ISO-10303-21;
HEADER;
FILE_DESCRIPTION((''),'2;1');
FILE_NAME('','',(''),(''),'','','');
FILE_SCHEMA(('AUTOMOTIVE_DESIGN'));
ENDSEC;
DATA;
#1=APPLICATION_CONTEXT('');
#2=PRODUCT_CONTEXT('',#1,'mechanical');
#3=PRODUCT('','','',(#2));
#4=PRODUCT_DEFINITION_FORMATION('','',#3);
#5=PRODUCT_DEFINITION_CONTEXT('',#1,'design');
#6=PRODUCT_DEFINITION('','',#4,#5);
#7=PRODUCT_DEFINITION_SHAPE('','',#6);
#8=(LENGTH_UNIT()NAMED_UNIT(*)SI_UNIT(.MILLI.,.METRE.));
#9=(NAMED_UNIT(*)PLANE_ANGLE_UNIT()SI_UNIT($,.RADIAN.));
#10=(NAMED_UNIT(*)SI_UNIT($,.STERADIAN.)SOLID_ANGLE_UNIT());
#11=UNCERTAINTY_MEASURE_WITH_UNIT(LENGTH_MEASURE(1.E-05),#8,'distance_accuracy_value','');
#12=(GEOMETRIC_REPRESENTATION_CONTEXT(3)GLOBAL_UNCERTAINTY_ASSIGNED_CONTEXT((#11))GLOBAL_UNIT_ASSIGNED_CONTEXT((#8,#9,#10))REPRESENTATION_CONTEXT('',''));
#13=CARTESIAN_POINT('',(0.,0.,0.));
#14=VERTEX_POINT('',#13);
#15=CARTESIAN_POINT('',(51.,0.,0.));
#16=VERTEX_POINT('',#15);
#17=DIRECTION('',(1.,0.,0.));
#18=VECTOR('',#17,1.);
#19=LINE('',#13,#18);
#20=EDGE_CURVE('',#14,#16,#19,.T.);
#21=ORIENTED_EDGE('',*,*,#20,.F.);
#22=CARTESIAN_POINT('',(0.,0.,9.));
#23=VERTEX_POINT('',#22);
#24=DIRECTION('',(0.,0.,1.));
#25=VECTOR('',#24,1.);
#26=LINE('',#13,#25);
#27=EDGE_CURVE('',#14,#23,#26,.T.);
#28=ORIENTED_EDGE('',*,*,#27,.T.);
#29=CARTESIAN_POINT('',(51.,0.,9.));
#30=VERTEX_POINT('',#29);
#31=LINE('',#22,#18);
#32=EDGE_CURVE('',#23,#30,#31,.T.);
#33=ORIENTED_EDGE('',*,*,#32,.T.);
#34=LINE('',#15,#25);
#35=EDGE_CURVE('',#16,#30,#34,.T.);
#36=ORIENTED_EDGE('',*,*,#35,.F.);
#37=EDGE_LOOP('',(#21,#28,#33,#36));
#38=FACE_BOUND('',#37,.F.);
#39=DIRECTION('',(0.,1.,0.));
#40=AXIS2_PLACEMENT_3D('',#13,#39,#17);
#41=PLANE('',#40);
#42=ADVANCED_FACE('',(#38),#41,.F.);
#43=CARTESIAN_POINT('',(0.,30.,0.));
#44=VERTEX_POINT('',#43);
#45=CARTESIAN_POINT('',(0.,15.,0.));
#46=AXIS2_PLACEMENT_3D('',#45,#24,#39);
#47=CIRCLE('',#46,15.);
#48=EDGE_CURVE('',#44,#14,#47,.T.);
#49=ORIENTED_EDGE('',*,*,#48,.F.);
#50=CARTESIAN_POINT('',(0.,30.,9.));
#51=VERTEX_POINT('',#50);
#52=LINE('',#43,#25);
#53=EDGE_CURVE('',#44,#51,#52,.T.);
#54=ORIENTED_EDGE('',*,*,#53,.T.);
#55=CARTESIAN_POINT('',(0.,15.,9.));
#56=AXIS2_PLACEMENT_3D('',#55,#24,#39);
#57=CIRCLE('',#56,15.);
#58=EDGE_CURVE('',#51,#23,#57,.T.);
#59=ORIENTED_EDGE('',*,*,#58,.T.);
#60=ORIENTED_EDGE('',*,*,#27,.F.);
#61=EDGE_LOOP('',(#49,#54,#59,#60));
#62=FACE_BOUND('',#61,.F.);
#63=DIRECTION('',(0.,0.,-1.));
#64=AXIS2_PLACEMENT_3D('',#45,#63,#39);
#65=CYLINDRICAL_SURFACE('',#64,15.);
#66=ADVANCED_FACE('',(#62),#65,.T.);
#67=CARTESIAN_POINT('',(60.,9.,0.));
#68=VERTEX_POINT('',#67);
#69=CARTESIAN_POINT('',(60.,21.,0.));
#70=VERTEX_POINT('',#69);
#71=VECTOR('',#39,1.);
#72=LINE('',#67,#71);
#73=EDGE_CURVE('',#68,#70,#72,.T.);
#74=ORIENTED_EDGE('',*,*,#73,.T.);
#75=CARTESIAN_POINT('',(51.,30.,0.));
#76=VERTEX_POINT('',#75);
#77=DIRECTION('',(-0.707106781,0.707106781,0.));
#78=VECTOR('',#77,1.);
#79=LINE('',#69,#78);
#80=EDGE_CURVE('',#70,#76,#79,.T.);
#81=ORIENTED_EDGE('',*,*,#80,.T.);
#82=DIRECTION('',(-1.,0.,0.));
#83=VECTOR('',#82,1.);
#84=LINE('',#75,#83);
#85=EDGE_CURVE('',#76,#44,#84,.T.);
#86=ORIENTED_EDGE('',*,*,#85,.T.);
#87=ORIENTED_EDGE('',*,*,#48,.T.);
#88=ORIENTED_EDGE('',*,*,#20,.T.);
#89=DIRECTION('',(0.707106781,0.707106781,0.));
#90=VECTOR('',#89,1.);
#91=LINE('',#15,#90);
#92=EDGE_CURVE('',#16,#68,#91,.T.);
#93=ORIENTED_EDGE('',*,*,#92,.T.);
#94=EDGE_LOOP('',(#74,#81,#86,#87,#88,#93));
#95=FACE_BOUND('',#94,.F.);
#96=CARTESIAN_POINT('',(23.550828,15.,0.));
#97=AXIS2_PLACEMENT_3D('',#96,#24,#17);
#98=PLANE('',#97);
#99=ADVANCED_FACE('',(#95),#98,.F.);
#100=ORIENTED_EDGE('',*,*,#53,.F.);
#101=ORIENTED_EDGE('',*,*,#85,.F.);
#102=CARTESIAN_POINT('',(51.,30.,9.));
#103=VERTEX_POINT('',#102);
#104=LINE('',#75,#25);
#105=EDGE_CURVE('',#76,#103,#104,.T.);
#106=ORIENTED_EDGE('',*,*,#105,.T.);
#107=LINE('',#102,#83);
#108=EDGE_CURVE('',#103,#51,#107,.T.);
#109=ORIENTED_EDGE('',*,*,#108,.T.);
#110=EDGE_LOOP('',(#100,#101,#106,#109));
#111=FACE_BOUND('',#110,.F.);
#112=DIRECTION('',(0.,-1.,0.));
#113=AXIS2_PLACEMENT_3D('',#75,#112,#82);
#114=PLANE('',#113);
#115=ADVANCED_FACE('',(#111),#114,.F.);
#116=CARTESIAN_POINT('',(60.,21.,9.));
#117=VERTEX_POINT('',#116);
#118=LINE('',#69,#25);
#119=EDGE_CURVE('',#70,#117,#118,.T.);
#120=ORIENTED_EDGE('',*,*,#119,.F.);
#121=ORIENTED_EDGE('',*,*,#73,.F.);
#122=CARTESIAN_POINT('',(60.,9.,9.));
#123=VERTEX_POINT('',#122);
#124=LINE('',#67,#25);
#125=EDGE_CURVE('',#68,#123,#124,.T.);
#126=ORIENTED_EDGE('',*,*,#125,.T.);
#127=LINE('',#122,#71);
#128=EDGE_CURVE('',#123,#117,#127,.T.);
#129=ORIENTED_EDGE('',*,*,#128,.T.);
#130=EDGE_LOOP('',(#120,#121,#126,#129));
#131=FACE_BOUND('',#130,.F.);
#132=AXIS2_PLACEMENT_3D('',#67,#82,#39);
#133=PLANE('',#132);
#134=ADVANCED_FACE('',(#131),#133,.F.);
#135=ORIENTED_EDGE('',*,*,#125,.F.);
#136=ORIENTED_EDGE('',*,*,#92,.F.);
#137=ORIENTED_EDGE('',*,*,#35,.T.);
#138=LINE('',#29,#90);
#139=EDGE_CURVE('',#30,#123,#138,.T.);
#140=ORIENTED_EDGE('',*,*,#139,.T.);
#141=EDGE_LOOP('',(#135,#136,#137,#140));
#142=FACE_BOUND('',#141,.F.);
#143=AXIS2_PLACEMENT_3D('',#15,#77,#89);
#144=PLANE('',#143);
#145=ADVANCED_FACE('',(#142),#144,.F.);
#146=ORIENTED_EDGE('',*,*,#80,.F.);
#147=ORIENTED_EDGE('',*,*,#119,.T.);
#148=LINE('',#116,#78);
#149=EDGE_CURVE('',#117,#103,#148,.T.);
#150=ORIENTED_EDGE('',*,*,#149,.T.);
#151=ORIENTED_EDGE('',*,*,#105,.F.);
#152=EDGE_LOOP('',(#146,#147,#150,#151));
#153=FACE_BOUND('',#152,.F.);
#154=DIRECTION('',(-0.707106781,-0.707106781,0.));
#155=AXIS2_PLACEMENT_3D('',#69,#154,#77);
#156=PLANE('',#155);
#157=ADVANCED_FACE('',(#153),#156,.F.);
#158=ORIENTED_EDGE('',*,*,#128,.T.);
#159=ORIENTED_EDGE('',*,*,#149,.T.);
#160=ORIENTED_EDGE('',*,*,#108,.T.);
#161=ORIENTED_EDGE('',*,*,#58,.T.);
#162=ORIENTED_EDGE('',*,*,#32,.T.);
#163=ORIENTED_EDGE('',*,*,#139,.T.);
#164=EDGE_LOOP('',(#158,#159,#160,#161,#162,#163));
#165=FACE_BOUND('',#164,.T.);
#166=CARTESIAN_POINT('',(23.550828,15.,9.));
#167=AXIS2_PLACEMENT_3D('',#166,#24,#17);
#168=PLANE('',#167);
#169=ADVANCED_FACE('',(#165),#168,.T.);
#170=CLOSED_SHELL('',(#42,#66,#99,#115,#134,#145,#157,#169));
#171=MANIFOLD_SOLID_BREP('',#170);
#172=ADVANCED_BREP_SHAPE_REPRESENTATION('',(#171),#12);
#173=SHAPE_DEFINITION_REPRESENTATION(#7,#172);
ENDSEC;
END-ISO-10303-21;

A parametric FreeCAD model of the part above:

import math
import FreeCAD as App
import Part
import Sketcher
from FreeCAD import Vector
Q = App.Units.Quantity

doc = App.newDocument("Part")
body = doc.addObject("PartDesign::Body", "Body")

sketch1 = body.newObject("Sketcher::SketchObject", "Sketch")
sketch1.AttachmentSupport = (doc.getObject("XY_Plane"), [""])
sketch1.MapMode = "FlatFace"
sketch1.addGeometry(Part.ArcOfCircle(Part.Circle(Vector(0, 15, 0), Vector(0, 0, 1), 15), math.radians(90), math.radians(270)), False)
sketch1.addGeometry(Part.LineSegment(Vector(0, 0, 0), Vector(51, 0, 0)), False)
sketch1.addGeometry(Part.LineSegment(Vector(51, 0, 0), Vector(60, 9, 0)), False)
sketch1.addGeometry(Part.LineSegment(Vector(60, 9, 0), Vector(60, 21, 0)), False)
sketch1.addGeometry(Part.LineSegment(Vector(60, 21, 0), Vector(51, 30, 0)), False)
sketch1.addGeometry(Part.LineSegment(Vector(51, 30, 0), Vector(0, 30, 0)), False)
sketch1.addConstraint(Sketcher.Constraint("Tangent", 0, 2, 1, 1))
sketch1.addConstraint(Sketcher.Constraint("Coincident", 1, 2, 2, 1))
sketch1.addConstraint(Sketcher.Constraint("Coincident", 2, 2, 3, 1))
sketch1.addConstraint(Sketcher.Constraint("Coincident", 3, 2, 4, 1))
sketch1.addConstraint(Sketcher.Constraint("Coincident", 4, 2, 5, 1))
sketch1.addConstraint(Sketcher.Constraint("Tangent", 5, 2, 0, 1))
sketch1.addConstraint(Sketcher.Constraint("Horizontal", 1))
sketch1.addConstraint(Sketcher.Constraint("Vertical", 3))
sketch1.addConstraint(Sketcher.Constraint("Horizontal", 5))
sketch1.addConstraint(Sketcher.Constraint("Coincident", 0, 2, -1, 1))
sketch1.addConstraint(Sketcher.Constraint("Perpendicular", 2, 4))
sketch1.addConstraint(Sketcher.Constraint("Vertical", 1, 2, 4, 2))
sketch1.addConstraint(Sketcher.Constraint("Equal", 2, 4))
sketch1.addConstraint(Sketcher.Constraint("Radius", 0, Q("15 mm")))
sketch1.addConstraint(Sketcher.Constraint("DistanceX", 1, 1, 1, 2, Q("51 mm")))
sketch1.addConstraint(Sketcher.Constraint("DistanceY", 3, 1, 3, 2, Q("12 mm")))
pad1 = body.newObject("PartDesign::Pad", "Pad")
pad1.Profile = sketch1
pad1.Length = 9

doc.recompute()
